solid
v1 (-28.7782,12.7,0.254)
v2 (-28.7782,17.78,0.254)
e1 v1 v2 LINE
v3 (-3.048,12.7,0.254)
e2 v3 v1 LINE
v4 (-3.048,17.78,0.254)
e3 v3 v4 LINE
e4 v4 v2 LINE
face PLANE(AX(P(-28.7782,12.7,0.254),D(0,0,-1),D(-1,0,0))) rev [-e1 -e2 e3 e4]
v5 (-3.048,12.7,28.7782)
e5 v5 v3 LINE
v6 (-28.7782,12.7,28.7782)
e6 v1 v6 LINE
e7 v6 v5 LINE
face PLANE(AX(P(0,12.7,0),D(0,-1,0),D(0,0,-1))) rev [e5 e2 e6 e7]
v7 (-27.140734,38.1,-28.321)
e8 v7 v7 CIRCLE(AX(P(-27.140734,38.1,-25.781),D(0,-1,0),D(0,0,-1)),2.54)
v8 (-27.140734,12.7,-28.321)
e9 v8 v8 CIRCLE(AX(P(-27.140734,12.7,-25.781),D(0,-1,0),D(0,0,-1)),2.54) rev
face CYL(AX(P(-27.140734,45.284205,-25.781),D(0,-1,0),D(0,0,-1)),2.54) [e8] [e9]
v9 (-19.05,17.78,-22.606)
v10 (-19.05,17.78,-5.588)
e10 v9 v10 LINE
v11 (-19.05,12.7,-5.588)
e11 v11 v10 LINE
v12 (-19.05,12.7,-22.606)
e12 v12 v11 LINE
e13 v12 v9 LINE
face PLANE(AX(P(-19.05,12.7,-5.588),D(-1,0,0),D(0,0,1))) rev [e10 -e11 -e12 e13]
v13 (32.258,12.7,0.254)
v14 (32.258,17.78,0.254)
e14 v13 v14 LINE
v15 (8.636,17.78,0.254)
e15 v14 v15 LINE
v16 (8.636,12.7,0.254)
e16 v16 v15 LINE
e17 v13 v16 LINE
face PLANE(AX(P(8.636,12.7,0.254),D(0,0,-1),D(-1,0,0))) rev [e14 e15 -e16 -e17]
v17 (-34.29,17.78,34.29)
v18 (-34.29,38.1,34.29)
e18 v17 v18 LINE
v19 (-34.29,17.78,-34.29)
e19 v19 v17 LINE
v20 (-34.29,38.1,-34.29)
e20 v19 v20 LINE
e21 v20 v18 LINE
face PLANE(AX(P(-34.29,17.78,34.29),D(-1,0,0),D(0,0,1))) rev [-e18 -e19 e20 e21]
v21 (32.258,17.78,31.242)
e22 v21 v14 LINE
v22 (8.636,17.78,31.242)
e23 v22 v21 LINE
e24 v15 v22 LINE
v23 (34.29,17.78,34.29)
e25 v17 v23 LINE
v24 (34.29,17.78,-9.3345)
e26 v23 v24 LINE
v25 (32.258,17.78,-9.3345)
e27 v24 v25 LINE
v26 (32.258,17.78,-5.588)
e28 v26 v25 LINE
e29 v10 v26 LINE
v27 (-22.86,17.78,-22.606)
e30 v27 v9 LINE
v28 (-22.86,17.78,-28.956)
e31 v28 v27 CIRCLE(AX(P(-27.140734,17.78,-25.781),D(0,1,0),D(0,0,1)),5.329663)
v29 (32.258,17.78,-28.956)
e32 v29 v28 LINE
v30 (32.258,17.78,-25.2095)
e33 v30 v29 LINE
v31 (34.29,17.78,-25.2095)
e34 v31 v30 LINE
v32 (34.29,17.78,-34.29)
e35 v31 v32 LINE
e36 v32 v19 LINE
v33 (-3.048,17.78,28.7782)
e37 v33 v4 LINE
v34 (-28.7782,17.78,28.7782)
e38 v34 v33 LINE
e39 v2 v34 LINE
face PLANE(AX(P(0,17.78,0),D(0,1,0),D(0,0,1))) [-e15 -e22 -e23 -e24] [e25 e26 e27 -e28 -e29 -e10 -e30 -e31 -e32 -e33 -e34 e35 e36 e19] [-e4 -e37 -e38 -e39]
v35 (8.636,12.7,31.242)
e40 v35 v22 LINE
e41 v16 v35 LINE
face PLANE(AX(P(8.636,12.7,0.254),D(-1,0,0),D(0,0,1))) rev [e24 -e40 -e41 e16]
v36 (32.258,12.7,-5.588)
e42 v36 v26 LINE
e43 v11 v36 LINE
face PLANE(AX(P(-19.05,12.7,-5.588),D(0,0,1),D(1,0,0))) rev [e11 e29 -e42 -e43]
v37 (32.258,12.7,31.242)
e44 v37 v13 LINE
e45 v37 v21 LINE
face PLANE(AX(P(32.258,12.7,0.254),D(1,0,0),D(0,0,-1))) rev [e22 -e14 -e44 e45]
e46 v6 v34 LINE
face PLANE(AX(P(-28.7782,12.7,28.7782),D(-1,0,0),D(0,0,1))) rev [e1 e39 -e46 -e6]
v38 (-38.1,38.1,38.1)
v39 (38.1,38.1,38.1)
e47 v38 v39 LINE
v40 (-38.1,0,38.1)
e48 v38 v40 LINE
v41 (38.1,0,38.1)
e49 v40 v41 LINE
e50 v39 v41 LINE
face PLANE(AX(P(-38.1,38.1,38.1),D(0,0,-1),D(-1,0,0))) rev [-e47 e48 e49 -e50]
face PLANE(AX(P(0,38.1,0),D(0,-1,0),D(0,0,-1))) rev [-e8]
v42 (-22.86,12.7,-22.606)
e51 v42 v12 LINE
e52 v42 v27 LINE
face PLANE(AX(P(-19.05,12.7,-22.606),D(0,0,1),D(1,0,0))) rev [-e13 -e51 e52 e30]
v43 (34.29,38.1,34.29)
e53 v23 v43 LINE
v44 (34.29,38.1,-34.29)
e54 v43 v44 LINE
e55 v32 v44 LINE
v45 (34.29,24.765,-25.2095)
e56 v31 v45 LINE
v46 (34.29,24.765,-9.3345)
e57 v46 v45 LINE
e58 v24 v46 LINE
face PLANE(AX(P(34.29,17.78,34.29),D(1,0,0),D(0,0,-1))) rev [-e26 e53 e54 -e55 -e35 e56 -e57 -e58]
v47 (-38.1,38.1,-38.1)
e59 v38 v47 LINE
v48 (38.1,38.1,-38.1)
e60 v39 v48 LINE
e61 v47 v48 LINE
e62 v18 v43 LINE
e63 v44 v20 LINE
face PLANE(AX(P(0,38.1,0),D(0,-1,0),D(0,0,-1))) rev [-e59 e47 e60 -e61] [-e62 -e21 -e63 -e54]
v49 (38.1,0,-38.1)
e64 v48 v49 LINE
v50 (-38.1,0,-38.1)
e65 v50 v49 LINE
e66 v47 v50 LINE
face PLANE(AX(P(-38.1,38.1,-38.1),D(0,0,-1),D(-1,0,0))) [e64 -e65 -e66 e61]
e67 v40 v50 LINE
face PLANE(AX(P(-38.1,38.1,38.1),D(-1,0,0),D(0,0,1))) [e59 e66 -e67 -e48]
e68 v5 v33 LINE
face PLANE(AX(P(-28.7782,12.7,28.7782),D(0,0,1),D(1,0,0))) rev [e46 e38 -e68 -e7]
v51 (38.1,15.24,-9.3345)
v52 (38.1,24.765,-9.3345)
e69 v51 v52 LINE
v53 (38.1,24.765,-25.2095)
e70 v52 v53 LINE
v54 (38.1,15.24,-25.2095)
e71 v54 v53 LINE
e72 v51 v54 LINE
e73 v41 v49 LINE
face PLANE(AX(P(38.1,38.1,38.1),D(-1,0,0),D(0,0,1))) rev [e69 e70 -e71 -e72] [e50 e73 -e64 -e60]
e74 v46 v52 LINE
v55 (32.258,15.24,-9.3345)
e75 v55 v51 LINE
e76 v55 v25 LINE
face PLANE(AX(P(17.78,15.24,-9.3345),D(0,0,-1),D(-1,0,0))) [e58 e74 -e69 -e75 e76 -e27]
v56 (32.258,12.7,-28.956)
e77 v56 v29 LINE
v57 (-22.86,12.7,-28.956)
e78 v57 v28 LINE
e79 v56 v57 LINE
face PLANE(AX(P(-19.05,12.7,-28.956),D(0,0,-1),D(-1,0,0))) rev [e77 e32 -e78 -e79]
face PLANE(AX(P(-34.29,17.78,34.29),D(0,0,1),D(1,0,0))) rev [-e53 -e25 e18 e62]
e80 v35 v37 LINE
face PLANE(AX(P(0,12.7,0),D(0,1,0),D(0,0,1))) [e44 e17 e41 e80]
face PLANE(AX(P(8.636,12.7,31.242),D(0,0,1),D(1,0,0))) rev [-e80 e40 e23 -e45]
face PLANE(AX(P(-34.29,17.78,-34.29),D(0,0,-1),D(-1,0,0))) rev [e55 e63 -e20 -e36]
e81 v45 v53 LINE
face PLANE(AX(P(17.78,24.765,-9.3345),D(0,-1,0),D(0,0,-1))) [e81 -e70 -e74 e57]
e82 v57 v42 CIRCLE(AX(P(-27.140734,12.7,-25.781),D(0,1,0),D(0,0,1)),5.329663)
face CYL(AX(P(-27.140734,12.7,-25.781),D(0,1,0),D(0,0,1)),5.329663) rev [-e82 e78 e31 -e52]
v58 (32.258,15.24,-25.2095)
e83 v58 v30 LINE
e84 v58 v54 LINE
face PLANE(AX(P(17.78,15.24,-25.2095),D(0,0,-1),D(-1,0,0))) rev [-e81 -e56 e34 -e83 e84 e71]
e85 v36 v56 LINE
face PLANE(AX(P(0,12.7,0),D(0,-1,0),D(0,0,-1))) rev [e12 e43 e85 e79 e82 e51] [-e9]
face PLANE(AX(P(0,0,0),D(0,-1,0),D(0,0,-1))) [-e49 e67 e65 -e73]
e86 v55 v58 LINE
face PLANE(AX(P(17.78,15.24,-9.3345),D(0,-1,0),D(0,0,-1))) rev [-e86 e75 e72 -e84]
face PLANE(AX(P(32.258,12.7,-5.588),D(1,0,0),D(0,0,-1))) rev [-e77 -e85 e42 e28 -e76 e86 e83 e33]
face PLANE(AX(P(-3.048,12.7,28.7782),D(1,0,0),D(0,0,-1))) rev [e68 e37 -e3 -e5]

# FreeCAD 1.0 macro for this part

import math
import FreeCAD as App
import Part
import Sketcher
Q = App.Units.Quantity


def add_polygon(sketch, points):
    """Adds a closed chain of lines whose ends are joined by coincident constraints."""
    first, n = sketch.GeometryCount, len(points)
    for a, b in zip(points, points[1:] + points[:1]):
        sketch.addGeometry(Part.LineSegment(App.Vector(*a, 0), App.Vector(*b, 0)), False)
    for i in range(n):
        sketch.addConstraint(Sketcher.Constraint("Coincident", first + i, 2, first + (i + 1) % n, 1))

doc = App.newDocument("Part")
body = doc.addObject("PartDesign::Body", "Body")

sketch1 = body.newObject("Sketcher::SketchObject", "Sketch")
sketch1.AttachmentSupport = (doc.getObject("XZ_Plane"), [""])
sketch1.MapMode = "FlatFace"
add_polygon(sketch1, [(-38, -38), (-38, 38), (38, 38), (38, -38)])
sketch1.addConstraint([
    Sketcher.Constraint("Vertical", 0),
    Sketcher.Constraint("Horizontal", 1),
    Sketcher.Constraint("Vertical", 2),
    Sketcher.Constraint("Horizontal", 3),
    Sketcher.Constraint("Symmetric", 0, 2, 2, 2, -1, 1),
    Sketcher.Constraint("Equal", 3, 0),
    Sketcher.Constraint("DistanceX", 1, 1, 1, 2, Q("3 in")),
])
pad1 = body.newObject("PartDesign::Pad", "Pad")
pad1.Profile = sketch1
pad1.Length = Q("1.5 in")
pad1.Reversed = True

sketch2 = body.newObject("Sketcher::SketchObject", "Sketch001")
sketch2.AttachmentSupport = (doc.getObject("XZ_Plane"), [""])
sketch2.MapMode = "FlatFace"
sketch2.AttachmentOffset = App.Placement(App.Vector(0, 0, -1.5 * 25.4), App.Rotation())
add_polygon(sketch2, [(-19, -29), (-19, -6), (32, -6), (32, -29)])
add_polygon(sketch2, [(9, 0), (9, 31), (32, 31), (32, 0)])
add_polygon(sketch2, [(-29, 0), (-29, 29), (-3, 29), (-3, 0)])
sketch2.addConstraint([
    Sketcher.Constraint("Vertical", 0),
    Sketcher.Constraint("Horizontal", 1),
    Sketcher.Constraint("Vertical", 2),
    Sketcher.Constraint("Horizontal", 3),
    Sketcher.Constraint("Vertical", 4),
    Sketcher.Constraint("Horizontal", 5),
    Sketcher.Constraint("Vertical", 6),
    Sketcher.Constraint("Horizontal", 7),
    Sketcher.Constraint("Vertical", 8),
    Sketcher.Constraint("Horizontal", 9),
    Sketcher.Constraint("Vertical", 10),
    Sketcher.Constraint("Horizontal", 11),
    Sketcher.Constraint("Horizontal", 7, 2, 10, 2),
    Sketcher.Constraint("Vertical", 2, 2, 5, 2),
    Sketcher.Constraint("DistanceX", 1, 1, 1, 2, Q("2.02 in")),
    Sketcher.Constraint("DistanceX", 5, 1, 5, 2, Q("0.93 in")),
    Sketcher.Constraint("DistanceY", 0, 1, 0, 2, Q("0.92 in")),
    Sketcher.Constraint("DistanceY", 4, 1, 4, 2, Q("1.22 in")),
    Sketcher.Constraint("DistanceX", 9, 1, 9, 2, Q("1.013 in")),
    Sketcher.Constraint("DistanceY", 8, 1, 8, 2, Q("1.123 in")),
    Sketcher.Constraint("DistanceX", 0, 2, -1, 1, Q("0.75 in")),
    Sketcher.Constraint("DistanceY", 0, 2, -1, 1, Q("0.22 in")),
    Sketcher.Constraint("DistanceY", -1, 1, 4, 2, Q("1.23 in")),
    Sketcher.Constraint("DistanceX", 9, 2, -1, 1, Q("0.12 in")),
])
pocket1 = body.newObject("PartDesign::Pocket", "Pocket")
pocket1.Profile = sketch2
pocket1.Length = Q("1 in")
pocket1.Reversed = True

sketch3 = body.newObject("Sketcher::SketchObject", "Sketch002")
sketch3.AttachmentSupport = (doc.getObject("XZ_Plane"), [""])
sketch3.MapMode = "FlatFace"
sketch3.AttachmentOffset = App.Placement(App.Vector(0, 0, -1.5 * 25.4), App.Rotation())
add_polygon(sketch3, [(-34, -34), (-34, 34), (34, 34), (34, -34)])
add_polygon(sketch3, [(-3, 29), (-29, 29), (-29, 0), (-3, 0)])
add_polygon(sketch3, [(32, 31), (9, 31), (9, 0), (32, 0)])
add_polygon(sketch3, [(32, -6), (-19, -6), (-19, -29), (32, -29)])
sketch3.addConstraint([
    Sketcher.Constraint("Vertical", 0),
    Sketcher.Constraint("Horizontal", 1),
    Sketcher.Constraint("Vertical", 2),
    Sketcher.Constraint("Horizontal", 3),
    Sketcher.Constraint("Horizontal", 4),
    Sketcher.Constraint("Vertical", 5),
    Sketcher.Constraint("Horizontal", 6),
    Sketcher.Constraint("Vertical", 7),
    Sketcher.Constraint("Horizontal", 8),
    Sketcher.Constraint("Vertical", 9),
    Sketcher.Constraint("Horizontal", 10),
    Sketcher.Constraint("Vertical", 11),
    Sketcher.Constraint("Horizontal", 12),
    Sketcher.Constraint("Vertical", 13),
    Sketcher.Constraint("Horizontal", 14),
    Sketcher.Constraint("Vertical", 15),
    Sketcher.Constraint("Symmetric", 0, 2, 2, 2, -1, 1),
    Sketcher.Constraint("Horizontal", 6, 2, 9, 2),
    Sketcher.Constraint("Vertical", 11, 2, 14, 2),
    Sketcher.Constraint("Equal", 3, 0),
    Sketcher.Constraint("DistanceX", 1, 1, 1, 2, Q("2.7 in")),
    Sketcher.Constraint("DistanceX", 8, 2, 8, 1, Q("0.93 in")),
    Sketcher.Constraint("DistanceX", 12, 2, 12, 1, Q("2.02 in")),
    Sketcher.Constraint("DistanceY", 9, 2, 9, 1, Q("1.22 in")),
    Sketcher.Constraint("DistanceY", 13, 2, 13, 1, Q("0.92 in")),
    Sketcher.Constraint("DistanceX", 3, 2, 12, 2, Q("0.6 in")),
    Sketcher.Constraint("DistanceX", 4, 2, 4, 1, Q("1.013 in")),
    Sketcher.Constraint("DistanceY", 5, 2, 5, 1, Q("1.123 in")),
    Sketcher.Constraint("DistanceY", -1, 1, 5, 2, Q("0.01 in")),
    Sketcher.Constraint("DistanceX", 6, 2, -1, 1, Q("0.12 in")),
    Sketcher.Constraint("DistanceY", 12, 2, -1, 1, Q("0.22 in")),
])
pocket2 = body.newObject("PartDesign::Pocket", "Pocket001")
pocket2.Profile = sketch3
pocket2.Length = Q("0.8 in")
pocket2.Reversed = True

sketch4 = body.newObject("Sketcher::SketchObject", "Sketch003")
sketch4.AttachmentSupport = (doc.getObject("YZ_Plane"), [""])
sketch4.MapMode = "FlatFace"
sketch4.AttachmentOffset = App.Placement(App.Vector(0, 0, 1.5 * 25.4), App.Rotation())
add_polygon(sketch4, [(25, -9), (15, -9), (15, -25), (25, -25)])
sketch4.addConstraint([
    Sketcher.Constraint("Horizontal", 0),
    Sketcher.Constraint("Vertical", 1),
    Sketcher.Constraint("Horizontal", 2),
    Sketcher.Constraint("Vertical", 3),
    Sketcher.Constraint("DistanceX", -1, 1, 0, 2, Q("0.6 in")),
    Sketcher.Constraint("DistanceX", 0, 2, 0, 1, Q("0.375 in")),
    Sketcher.Constraint("DistanceY", 1, 2, 1, 1, Q("0.625 in")),
    Sketcher.Constraint("DistanceY", 0, 2, -1, 1, Q("0.3675 in")),
])
pocket3 = body.newObject("PartDesign::Pocket", "Pocket002")
pocket3.Profile = sketch4
pocket3.Length = Q("0.8 in")

sketch5 = body.newObject("Sketcher::SketchObject", "Sketch004")
sketch5.AttachmentSupport = (doc.getObject("XZ_Plane"), [""])
sketch5.MapMode = "FlatFace"
sketch5.AttachmentOffset = App.Placement(App.Vector(0, 0, -0.7 * 25.4), App.Rotation())
sketch5.addGeometry([
    Part.LineSegment(App.Vector(-19.1, -22.6, 0), App.Vector(-19.1, -29, 0)),
    Part.LineSegment(App.Vector(-19.1, -29, 0), App.Vector(-22.9, -29, 0)),
    Part.ArcOfCircle(Part.Circle(App.Vector(-27.1, -25.8, 0), App.Vector(0, 0, 1), 5.3), math.radians(37), math.radians(323)),
    Part.LineSegment(App.Vector(-22.9, -22.6, 0), App.Vector(-19.1, -22.6, 0)),
], False)
sketch5.addConstraint([
    Sketcher.Constraint("Coincident", 0, 2, 1, 1),
    Sketcher.Constraint("Coincident", 1, 2, 2, 2),
    Sketcher.Constraint("Coincident", 2, 1, 3, 1),
    Sketcher.Constraint("Coincident", 3, 2, 0, 1),
    Sketcher.Constraint("Vertical", 0),
    Sketcher.Constraint("Horizontal", 1),
    Sketcher.Constraint("Horizontal", 3),
    Sketcher.Constraint("Vertical", 1, 2, 2, 1),
    Sketcher.Constraint("DistanceX", 1, 2, 1, 1, Q("0.15 in")),
    Sketcher.Constraint("DistanceY", 0, 2, 0, 1, Q("0.25 in")),
    Sketcher.Constraint("DistanceX", 1, 2, -1, 1, Q("0.9 in")),
    Sketcher.Constraint("DistanceY", 0, 2, -1, 1, Q("1.14 in")),
    Sketcher.Constraint("Radius", 2, 5.329663),
])
pocket4 = body.newObject("PartDesign::Pocket", "Pocket003")
pocket4.Profile = sketch5
pocket4.Length = Q("0.2 in")
pocket4.Reversed = True

sketch6 = body.newObject("Sketcher::SketchObject", "Sketch005")
sketch6.AttachmentSupport = (doc.getObject("XZ_Plane"), [""])
sketch6.MapMode = "FlatFace"
sketch6.AttachmentOffset = App.Placement(App.Vector(0, 0, -0.5 * 25.4), App.Rotation())
sketch6.addGeometry(Part.Circle(App.Vector(-27.1, -25.8, 0), App.Vector(0, 0, 1), 2.5), False)
sketch6.addConstraint([
    Sketcher.Constraint("Diameter", 0, Q("0.2 in")),
    Sketcher.Constraint("DistanceY", 0, 3, -1, 1, Q("1.015 in")),
    Sketcher.Constraint("DistanceX", 0, 3, -1, 1, 27.140734),
])
pad2 = body.newObject("PartDesign::Pad", "Pad001")
pad2.Profile = sketch6
pad2.Length = Q("1 in")
pad2.Reversed = True

doc.recompute()
